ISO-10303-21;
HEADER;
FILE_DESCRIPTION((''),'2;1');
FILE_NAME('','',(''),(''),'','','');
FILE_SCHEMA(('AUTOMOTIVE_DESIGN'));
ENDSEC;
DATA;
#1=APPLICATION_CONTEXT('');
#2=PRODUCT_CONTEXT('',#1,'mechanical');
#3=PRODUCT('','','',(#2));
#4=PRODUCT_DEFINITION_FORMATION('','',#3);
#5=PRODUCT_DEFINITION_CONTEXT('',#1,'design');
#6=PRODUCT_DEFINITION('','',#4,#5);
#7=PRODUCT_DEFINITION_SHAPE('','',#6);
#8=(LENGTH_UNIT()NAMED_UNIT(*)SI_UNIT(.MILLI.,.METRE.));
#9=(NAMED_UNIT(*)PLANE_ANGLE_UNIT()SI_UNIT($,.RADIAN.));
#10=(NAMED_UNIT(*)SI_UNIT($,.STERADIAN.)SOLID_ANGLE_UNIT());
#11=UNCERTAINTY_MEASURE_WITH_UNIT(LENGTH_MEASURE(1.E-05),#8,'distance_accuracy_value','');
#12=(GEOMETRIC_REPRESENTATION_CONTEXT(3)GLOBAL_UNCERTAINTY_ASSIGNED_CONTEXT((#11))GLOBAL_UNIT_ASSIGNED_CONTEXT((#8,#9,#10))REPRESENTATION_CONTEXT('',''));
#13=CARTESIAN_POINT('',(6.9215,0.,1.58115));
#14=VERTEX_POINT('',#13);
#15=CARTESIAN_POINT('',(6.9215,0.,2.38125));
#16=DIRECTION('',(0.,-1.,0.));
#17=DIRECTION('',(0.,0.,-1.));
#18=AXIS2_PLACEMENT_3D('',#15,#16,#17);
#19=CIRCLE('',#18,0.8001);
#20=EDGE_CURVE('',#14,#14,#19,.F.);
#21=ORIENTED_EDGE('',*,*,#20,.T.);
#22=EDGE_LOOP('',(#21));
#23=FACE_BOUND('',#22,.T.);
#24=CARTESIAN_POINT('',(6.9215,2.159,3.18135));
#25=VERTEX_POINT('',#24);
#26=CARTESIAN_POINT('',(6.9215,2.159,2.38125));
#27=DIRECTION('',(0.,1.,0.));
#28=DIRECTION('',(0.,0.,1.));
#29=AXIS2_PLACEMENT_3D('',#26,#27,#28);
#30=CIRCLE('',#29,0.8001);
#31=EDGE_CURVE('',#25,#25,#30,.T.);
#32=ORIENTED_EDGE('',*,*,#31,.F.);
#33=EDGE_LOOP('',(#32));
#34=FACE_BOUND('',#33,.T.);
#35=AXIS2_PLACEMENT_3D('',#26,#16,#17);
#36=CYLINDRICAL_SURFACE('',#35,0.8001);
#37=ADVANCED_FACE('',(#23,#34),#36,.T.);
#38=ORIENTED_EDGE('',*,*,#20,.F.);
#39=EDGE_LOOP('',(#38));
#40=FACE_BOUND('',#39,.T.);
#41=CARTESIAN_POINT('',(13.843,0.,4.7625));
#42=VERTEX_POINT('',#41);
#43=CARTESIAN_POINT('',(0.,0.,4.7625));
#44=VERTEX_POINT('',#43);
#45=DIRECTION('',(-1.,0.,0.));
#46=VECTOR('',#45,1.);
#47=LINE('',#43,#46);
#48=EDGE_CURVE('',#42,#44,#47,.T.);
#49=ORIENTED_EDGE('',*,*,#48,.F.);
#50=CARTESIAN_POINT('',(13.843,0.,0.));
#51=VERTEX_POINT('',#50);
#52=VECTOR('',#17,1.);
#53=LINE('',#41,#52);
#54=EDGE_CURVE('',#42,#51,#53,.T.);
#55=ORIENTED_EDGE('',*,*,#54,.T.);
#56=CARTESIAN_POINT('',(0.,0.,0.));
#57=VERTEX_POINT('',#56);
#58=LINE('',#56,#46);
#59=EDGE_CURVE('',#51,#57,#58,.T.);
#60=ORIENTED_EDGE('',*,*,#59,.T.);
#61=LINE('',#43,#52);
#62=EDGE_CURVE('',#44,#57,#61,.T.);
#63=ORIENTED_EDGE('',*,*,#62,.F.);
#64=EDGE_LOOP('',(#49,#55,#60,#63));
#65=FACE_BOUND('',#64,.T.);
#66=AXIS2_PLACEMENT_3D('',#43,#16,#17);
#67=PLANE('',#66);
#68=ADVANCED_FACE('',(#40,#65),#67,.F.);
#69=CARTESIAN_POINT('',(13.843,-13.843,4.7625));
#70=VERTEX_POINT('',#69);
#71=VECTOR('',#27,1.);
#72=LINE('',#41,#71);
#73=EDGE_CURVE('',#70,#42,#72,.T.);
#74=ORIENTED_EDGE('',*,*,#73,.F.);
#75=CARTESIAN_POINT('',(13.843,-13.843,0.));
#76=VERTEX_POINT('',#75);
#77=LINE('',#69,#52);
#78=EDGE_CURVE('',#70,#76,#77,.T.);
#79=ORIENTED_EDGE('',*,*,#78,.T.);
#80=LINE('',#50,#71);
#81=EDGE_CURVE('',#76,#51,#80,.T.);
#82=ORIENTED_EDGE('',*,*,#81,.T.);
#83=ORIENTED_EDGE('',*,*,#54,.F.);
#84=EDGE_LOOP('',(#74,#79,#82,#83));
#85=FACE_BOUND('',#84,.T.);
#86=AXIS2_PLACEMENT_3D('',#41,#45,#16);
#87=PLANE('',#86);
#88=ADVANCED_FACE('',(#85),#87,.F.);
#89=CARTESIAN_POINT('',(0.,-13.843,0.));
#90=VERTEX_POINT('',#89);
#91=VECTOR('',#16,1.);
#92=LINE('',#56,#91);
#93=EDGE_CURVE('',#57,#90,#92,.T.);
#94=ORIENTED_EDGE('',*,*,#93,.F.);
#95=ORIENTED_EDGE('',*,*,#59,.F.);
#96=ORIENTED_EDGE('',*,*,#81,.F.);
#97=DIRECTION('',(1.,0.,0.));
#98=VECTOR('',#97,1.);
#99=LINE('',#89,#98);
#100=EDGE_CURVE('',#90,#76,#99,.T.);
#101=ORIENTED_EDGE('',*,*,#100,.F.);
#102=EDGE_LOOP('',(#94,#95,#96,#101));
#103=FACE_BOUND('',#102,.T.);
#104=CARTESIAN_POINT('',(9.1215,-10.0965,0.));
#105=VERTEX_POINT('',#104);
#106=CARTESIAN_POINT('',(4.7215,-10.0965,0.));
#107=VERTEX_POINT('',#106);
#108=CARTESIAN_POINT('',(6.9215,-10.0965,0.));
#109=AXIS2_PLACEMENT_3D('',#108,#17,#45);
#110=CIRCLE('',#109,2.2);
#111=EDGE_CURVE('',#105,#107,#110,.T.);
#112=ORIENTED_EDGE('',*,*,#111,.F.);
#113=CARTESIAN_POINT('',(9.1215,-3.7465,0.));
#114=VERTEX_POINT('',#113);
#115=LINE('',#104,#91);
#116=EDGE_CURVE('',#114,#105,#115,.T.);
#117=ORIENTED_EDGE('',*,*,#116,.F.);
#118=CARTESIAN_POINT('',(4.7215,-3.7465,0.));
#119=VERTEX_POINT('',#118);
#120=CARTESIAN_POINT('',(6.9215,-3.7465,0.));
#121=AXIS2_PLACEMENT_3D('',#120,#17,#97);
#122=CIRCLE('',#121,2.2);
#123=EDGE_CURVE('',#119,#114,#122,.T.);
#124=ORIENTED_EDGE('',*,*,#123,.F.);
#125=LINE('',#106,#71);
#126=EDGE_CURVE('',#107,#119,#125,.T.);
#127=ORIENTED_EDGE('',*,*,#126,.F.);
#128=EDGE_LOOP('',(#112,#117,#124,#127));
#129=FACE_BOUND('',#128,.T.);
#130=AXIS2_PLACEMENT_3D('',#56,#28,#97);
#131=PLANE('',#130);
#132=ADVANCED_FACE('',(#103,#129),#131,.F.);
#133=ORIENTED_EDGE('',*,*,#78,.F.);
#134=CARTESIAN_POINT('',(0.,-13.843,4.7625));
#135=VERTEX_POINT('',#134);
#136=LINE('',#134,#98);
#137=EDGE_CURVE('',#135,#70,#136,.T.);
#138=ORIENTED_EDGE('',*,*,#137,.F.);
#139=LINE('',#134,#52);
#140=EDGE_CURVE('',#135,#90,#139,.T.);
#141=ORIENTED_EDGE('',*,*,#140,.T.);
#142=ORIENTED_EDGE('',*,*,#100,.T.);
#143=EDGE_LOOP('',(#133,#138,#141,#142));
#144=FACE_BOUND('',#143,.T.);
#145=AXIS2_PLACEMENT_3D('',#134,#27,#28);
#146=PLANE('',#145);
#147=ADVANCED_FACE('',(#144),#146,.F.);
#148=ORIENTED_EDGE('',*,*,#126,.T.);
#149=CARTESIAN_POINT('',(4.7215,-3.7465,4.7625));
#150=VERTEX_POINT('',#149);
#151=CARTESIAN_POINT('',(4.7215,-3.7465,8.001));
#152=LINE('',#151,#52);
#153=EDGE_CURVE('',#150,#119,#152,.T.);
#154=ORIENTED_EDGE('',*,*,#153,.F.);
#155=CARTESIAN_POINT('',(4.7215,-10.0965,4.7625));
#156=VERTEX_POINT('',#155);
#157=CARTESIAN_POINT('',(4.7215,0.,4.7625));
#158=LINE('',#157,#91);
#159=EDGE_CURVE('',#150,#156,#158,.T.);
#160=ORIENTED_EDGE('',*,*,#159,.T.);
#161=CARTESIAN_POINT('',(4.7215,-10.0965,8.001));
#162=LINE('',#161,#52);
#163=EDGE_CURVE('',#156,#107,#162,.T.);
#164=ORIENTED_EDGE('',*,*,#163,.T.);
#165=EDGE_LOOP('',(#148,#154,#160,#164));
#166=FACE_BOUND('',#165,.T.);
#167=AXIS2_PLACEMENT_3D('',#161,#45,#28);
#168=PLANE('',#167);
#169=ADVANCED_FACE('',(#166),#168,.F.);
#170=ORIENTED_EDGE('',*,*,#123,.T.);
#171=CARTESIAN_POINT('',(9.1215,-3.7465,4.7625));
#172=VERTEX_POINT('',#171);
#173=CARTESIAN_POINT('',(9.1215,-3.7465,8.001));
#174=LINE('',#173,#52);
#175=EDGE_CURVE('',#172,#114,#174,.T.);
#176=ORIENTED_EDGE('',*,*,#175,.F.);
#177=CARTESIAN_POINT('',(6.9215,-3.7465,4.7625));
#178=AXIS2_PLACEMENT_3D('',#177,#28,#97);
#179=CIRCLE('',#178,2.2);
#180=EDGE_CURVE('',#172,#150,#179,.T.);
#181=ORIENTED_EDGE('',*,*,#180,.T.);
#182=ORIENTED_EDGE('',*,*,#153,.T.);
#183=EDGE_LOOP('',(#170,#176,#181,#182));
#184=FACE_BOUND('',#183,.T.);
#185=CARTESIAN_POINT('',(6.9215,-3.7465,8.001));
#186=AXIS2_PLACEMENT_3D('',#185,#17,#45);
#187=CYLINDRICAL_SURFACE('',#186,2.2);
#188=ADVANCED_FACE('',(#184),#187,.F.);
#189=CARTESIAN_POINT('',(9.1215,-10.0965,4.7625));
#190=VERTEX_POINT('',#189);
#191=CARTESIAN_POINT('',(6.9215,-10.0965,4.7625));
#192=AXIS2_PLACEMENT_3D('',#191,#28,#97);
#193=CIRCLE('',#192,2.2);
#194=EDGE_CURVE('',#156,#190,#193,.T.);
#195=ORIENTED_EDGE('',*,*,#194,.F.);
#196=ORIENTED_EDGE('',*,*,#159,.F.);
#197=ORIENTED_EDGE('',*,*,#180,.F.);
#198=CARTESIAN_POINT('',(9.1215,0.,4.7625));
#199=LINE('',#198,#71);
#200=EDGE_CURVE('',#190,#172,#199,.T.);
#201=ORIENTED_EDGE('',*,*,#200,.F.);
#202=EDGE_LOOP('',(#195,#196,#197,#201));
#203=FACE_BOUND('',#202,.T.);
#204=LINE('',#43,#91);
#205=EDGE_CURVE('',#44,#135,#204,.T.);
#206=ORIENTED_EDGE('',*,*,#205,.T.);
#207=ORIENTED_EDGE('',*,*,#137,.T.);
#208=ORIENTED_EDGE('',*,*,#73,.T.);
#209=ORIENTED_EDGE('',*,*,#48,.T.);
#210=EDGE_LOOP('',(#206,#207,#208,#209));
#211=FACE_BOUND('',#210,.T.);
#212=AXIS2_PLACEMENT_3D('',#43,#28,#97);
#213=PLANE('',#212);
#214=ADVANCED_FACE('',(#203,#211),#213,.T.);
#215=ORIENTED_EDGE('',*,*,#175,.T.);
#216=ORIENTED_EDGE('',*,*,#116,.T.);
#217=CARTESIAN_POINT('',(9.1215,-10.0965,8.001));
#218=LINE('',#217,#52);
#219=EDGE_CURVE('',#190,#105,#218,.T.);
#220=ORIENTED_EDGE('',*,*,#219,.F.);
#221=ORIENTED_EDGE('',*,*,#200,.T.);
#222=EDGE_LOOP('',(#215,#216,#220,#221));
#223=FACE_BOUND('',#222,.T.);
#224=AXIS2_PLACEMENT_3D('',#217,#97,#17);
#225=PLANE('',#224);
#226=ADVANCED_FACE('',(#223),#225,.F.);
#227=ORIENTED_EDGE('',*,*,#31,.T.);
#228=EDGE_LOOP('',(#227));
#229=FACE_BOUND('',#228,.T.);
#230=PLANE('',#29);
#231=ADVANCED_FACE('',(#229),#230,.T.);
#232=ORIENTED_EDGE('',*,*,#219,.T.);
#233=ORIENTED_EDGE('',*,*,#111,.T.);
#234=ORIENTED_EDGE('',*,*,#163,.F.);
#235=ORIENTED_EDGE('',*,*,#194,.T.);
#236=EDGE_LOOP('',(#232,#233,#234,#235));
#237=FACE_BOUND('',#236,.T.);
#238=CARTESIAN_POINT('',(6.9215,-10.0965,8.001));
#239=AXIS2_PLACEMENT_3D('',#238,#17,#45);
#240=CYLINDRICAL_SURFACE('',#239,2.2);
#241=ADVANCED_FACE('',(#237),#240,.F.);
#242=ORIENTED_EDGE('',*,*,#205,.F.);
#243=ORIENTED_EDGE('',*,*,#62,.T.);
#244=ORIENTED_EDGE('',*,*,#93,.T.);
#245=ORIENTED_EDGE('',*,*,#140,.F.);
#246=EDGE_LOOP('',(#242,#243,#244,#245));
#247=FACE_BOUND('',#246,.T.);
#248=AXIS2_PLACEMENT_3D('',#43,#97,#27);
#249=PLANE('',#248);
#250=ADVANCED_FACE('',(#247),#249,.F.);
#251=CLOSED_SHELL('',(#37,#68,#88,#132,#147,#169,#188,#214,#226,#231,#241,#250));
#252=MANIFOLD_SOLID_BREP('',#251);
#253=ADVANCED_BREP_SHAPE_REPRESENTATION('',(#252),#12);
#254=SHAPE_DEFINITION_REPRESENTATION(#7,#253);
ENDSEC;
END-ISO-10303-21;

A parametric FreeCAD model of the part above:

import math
import FreeCAD as App
import Part
import Sketcher
Q = App.Units.Quantity


def add_polygon(sketch, points):
    """Adds a closed chain of lines whose ends are joined by coincident constraints."""
    first, n = sketch.GeometryCount, len(points)
    for a, b in zip(points, points[1:] + points[:1]):
        sketch.addGeometry(Part.LineSegment(App.Vector(*a, 0), App.Vector(*b, 0)), False)
    for i in range(n):
        sketch.addConstraint(Sketcher.Constraint("Coincident", first + i, 2, first + (i + 1) % n, 1))

doc = App.newDocument("Part")
body = doc.addObject("PartDesign::Body", "Body")

# Sketch on XY plane
sketch1 = body.newObject("Sketcher::SketchObject", "Sketch")
sketch1.AttachmentSupport = (doc.getObject("XY_Plane"), [""])
sketch1.MapMode = "FlatFace"
add_polygon(sketch1, [(0, 0), (0, -14), (14, -14), (14, 0)])  # lines 0-3
sketch1.addConstraint(Sketcher.Constraint("Vertical", 0))
sketch1.addConstraint(Sketcher.Constraint("Horizontal", 1))
sketch1.addConstraint(Sketcher.Constraint("Vertical", 2))
sketch1.addConstraint(Sketcher.Constraint("Horizontal", 3))
sketch1.addConstraint(Sketcher.Constraint("Coincident", 3, 2, -1, 1))
sketch1.addConstraint(Sketcher.Constraint("Equal", 3, 0))
sketch1.addConstraint(Sketcher.Constraint("DistanceX", 1, 1, 1, 2, Q("0.545 in")))
pad1 = body.newObject("PartDesign::Pad", "Pad")
pad1.Profile = sketch1
pad1.Length = Q("0.1875 in")

# Sketch on XZ plane
sketch2 = body.newObject("Sketcher::SketchObject", "Sketch001")
sketch2.AttachmentSupport = (doc.getObject("XZ_Plane"), [""])
sketch2.MapMode = "FlatFace"
sketch2.addGeometry(Part.Circle(App.Vector(6.9, 2.4, 0), App.Vector(0, 0, 1), 0.8), False)
sketch2.addConstraint(Sketcher.Constraint("Diameter", 0, Q("0.063 in")))
sketch2.addConstraint(Sketcher.Constraint("DistanceY", -1, 1, 0, 3, Q("0.09375 in")))
sketch2.addConstraint(Sketcher.Constraint("DistanceX", -1, 1, 0, 3, Q("0.2725 in")))
pad2 = body.newObject("PartDesign::Pad", "Pad001")
pad2.Profile = sketch2
pad2.Length = Q("0.085 in")
pad2.Reversed = True

# Sketch on XY plane
sketch3 = body.newObject("Sketcher::SketchObject", "Sketch002")
sketch3.AttachmentSupport = (doc.getObject("XY_Plane"), [""])
sketch3.MapMode = "FlatFace"
sketch3.addGeometry(Part.LineSegment(App.Vector(9.1, -3.7, 0), App.Vector(9.1, -10.1, 0)), False)
sketch3.addGeometry(Part.ArcOfCircle(Part.Circle(App.Vector(6.9, -10.1, 0), App.Vector(0, 0, 1), 2.2), math.radians(180), math.radians(360)), False)
sketch3.addGeometry(Part.LineSegment(App.Vector(4.7, -10.1, 0), App.Vector(4.7, -3.7, 0)), False)
sketch3.addGeometry(Part.ArcOfCircle(Part.Circle(App.Vector(6.9, -3.7, 0), App.Vector(0, 0, 1), 2.2), math.radians(0), math.radians(180)), False)
sketch3.addConstraint(Sketcher.Constraint("Tangent", 0, 2, 1, 2))
sketch3.addConstraint(Sketcher.Constraint("Tangent", 1, 1, 2, 1))
sketch3.addConstraint(Sketcher.Constraint("Tangent", 2, 2, 3, 2))
sketch3.addConstraint(Sketcher.Constraint("Tangent", 3, 1, 0, 1))
sketch3.addConstraint(Sketcher.Constraint("Vertical", 0))
sketch3.addConstraint(Sketcher.Constraint("Vertical", 2))
sketch3.addConstraint(Sketcher.Constraint("DistanceY", 0, 2, 0, 1, Q("0.25 in")))
sketch3.addConstraint(Sketcher.Constraint("Radius", 1, 2.2))
sketch3.addConstraint(Sketcher.Constraint("DistanceX", -1, 1, 1, 3, Q("0.2725 in")))
sketch3.addConstraint(Sketcher.Constraint("DistanceY", 1, 3, -1, 1, Q("0.3975 in")))
pocket1 = body.newObject("PartDesign::Pocket", "Pocket")
pocket1.Profile = sketch3
pocket1.Length = Q("0.315 in")
pocket1.Reversed = True

doc.recompute()
